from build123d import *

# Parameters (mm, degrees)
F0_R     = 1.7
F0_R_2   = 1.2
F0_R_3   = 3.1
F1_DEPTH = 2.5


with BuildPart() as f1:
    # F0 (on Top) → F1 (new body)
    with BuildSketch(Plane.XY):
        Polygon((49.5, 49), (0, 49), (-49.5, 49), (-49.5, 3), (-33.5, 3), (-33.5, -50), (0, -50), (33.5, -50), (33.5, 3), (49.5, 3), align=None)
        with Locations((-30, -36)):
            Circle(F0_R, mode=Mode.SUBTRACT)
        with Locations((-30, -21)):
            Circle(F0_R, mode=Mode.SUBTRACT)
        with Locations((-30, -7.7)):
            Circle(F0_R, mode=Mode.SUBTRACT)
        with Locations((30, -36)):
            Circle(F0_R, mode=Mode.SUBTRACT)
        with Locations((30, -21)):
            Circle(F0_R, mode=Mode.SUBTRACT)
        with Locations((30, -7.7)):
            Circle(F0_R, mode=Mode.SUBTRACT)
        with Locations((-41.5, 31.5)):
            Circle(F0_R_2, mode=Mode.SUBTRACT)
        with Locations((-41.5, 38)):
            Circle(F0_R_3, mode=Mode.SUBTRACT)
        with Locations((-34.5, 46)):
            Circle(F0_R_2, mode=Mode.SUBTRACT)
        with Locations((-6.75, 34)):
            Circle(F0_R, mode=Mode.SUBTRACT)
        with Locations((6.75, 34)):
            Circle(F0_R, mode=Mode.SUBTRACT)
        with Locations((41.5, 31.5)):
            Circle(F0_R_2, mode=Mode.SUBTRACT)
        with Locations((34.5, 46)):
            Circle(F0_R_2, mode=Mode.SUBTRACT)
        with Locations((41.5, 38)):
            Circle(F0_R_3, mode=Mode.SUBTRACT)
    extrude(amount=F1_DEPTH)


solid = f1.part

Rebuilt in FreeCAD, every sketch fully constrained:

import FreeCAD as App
import Part
import Sketcher
from FreeCAD import Vector
Q = App.Units.Quantity


def add_polygon(sketch, points):
    """Adds a closed chain of lines whose ends are joined by coincident constraints."""
    first, n = sketch.GeometryCount, len(points)
    for a, b in zip(points, points[1:] + points[:1]):
        sketch.addGeometry(Part.LineSegment(App.Vector(*a, 0), App.Vector(*b, 0)), False)
    for i in range(n):
        sketch.addConstraint(Sketcher.Constraint("Coincident", first + i, 2, first + (i + 1) % n, 1))

doc = App.newDocument("Part")
body = doc.addObject("PartDesign::Body", "Body")

# Sketch on XY plane
sketch1 = body.newObject("Sketcher::SketchObject", "Sketch")
sketch1.AttachmentSupport = (doc.getObject("XY_Plane"), [""])
sketch1.MapMode = "FlatFace"
add_polygon(sketch1, [(49.5, 49), (-49.5, 49), (-49.5, 3), (-33.5, 3), (-33.5, -50), (33.5, -50), (33.5, 3), (49.5, 3)])  # lines 0-7
sketch1.addGeometry(Part.Circle(Vector(-30, -36, 0), Vector(0, 0, 1), 1.7), False)  # 8
sketch1.addGeometry(Part.Circle(Vector(-30, -21, 0), Vector(0, 0, 1), 1.7), False)  # 9
sketch1.addGeometry(Part.Circle(Vector(-30, -7.7, 0), Vector(0, 0, 1), 1.7), False)  # 10
sketch1.addGeometry(Part.Circle(Vector(30, -36, 0), Vector(0, 0, 1), 1.7), False)  # 11
sketch1.addGeometry(Part.Circle(Vector(30, -21, 0), Vector(0, 0, 1), 1.7), False)  # 12
sketch1.addGeometry(Part.Circle(Vector(30, -7.7, 0), Vector(0, 0, 1), 1.7), False)  # 13
sketch1.addGeometry(Part.Circle(Vector(-41.5, 31.5, 0), Vector(0, 0, 1), 1.2), False)  # 14
sketch1.addGeometry(Part.Circle(Vector(-41.5, 38, 0), Vector(0, 0, 1), 3.1), False)  # 15
sketch1.addGeometry(Part.Circle(Vector(-34.5, 46, 0), Vector(0, 0, 1), 1.2), False)  # 16
sketch1.addGeometry(Part.Circle(Vector(-6.8, 34, 0), Vector(0, 0, 1), 1.7), False)  # 17
sketch1.addGeometry(Part.Circle(Vector(6.8, 34, 0), Vector(0, 0, 1), 1.7), False)  # 18
sketch1.addGeometry(Part.Circle(Vector(41.5, 31.5, 0), Vector(0, 0, 1), 1.2), False)  # 19
sketch1.addGeometry(Part.Circle(Vector(41.5, 38, 0), Vector(0, 0, 1), 3.1), False)  # 20
sketch1.addGeometry(Part.Circle(Vector(34.5, 46, 0), Vector(0, 0, 1), 1.2), False)  # 21
sketch1.addConstraint(Sketcher.Constraint("Horizontal", 0))
sketch1.addConstraint(Sketcher.Constraint("Vertical", 1))
sketch1.addConstraint(Sketcher.Constraint("Horizontal", 2))
sketch1.addConstraint(Sketcher.Constraint("Vertical", 3))
sketch1.addConstraint(Sketcher.Constraint("Horizontal", 4))
sketch1.addConstraint(Sketcher.Constraint("Vertical", 5))
sketch1.addConstraint(Sketcher.Constraint("Horizontal", 6))
sketch1.addConstraint(Sketcher.Constraint("Vertical", 7))
sketch1.addConstraint(Sketcher.Constraint("Equal", 8, 9))
sketch1.addConstraint(Sketcher.Constraint("Equal", 9, 10))
sketch1.addConstraint(Sketcher.Constraint("Equal", 10, 11))
sketch1.addConstraint(Sketcher.Constraint("Equal", 11, 12))
sketch1.addConstraint(Sketcher.Constraint("Equal", 12, 13))
sketch1.addConstraint(Sketcher.Constraint("Equal", 14, 16))
sketch1.addConstraint(Sketcher.Constraint("Equal", 13, 17))
sketch1.addConstraint(Sketcher.Constraint("Equal", 17, 18))
sketch1.addConstraint(Sketcher.Constraint("Equal", 16, 19))
sketch1.addConstraint(Sketcher.Constraint("Equal", 15, 20))
sketch1.addConstraint(Sketcher.Constraint("Equal", 19, 21))
sketch1.addConstraint(Sketcher.Constraint("Symmetric", 8, 3, 11, 3, -2))
sketch1.addConstraint(Sketcher.Constraint("Symmetric", 9, 3, 12, 3, -2))
sketch1.addConstraint(Sketcher.Constraint("Symmetric", 10, 3, 13, 3, -2))
sketch1.addConstraint(Sketcher.Constraint("Symmetric", 17, 3, 18, 3, -2))
sketch1.addConstraint(Sketcher.Constraint("Symmetric", 14, 3, 19, 3, -2))
sketch1.addConstraint(Sketcher.Constraint("Symmetric", 15, 3, 20, 3, -2))
sketch1.addConstraint(Sketcher.Constraint("Symmetric", 16, 3, 21, 3, -2))
sketch1.addConstraint(Sketcher.Constraint("Symmetric", 2, 2, 5, 2, -2))
sketch1.addConstraint(Sketcher.Constraint("Vertical", 8, 3, 9, 3))
sketch1.addConstraint(Sketcher.Constraint("Vertical", 9, 3, 10, 3))
sketch1.addConstraint(Sketcher.Constraint("Vertical", 14, 3, 15, 3))
sketch1.addConstraint(Sketcher.Constraint("Equal", 2, 6))
sketch1.addConstraint(Sketcher.Constraint("Diameter", 8, Q("3.4 mm")))
sketch1.addConstraint(Sketcher.Constraint("Diameter", 14, Q("2.4 mm")))
sketch1.addConstraint(Sketcher.Constraint("Diameter", 15, Q("6.2 mm")))
sketch1.addConstraint(Sketcher.Constraint("DistanceX", 0, 2, 0, 1, Q("99 mm")))
sketch1.addConstraint(Sketcher.Constraint("DistanceX", 2, 1, 2, 2, Q("16 mm")))
sketch1.addConstraint(Sketcher.Constraint("DistanceY", 1, 2, 1, 1, Q("46 mm")))
sketch1.addConstraint(Sketcher.Constraint("DistanceY", 3, 2, 3, 1, Q("53 mm")))
sketch1.addConstraint(Sketcher.Constraint("DistanceX", 8, 3, -1, 1, Q("30 mm")))
sketch1.addConstraint(Sketcher.Constraint("DistanceY", 8, 3, -1, 1, Q("36 mm")))
sketch1.addConstraint(Sketcher.Constraint("DistanceY", 9, 3, -1, 1, Q("21 mm")))
sketch1.addConstraint(Sketcher.Constraint("DistanceY", -1, 1, 15, 3, Q("38 mm")))
sketch1.addConstraint(Sketcher.Constraint("DistanceY", -1, 1, 16, 3, Q("46 mm")))
sketch1.addConstraint(Sketcher.Constraint("DistanceY", -1, 1, 17, 3, Q("34 mm")))
sketch1.addConstraint(Sketcher.Constraint("DistanceY", -1, 1, 0, 2, Q("49 mm")))
sketch1.addConstraint(Sketcher.Constraint("DistanceX", 15, 3, 16, 3, Q("7 mm")))
sketch1.addConstraint(Sketcher.Constraint("DistanceX", 0, 2, 15, 3, Q("8 mm")))
sketch1.addConstraint(Sketcher.Constraint("DistanceY", 10, 3, -1, 1, Q("7.7 mm")))
sketch1.addConstraint(Sketcher.Constraint("DistanceY", -1, 1, 14, 3, Q("31.5 mm")))
sketch1.addConstraint(Sketcher.Constraint("DistanceX", 17, 3, 18, 3, Q("13.5 mm")))
pad1 = body.newObject("PartDesign::Pad", "Pad")
pad1.Profile = sketch1
pad1.Length = 2.5

doc.recompute()
